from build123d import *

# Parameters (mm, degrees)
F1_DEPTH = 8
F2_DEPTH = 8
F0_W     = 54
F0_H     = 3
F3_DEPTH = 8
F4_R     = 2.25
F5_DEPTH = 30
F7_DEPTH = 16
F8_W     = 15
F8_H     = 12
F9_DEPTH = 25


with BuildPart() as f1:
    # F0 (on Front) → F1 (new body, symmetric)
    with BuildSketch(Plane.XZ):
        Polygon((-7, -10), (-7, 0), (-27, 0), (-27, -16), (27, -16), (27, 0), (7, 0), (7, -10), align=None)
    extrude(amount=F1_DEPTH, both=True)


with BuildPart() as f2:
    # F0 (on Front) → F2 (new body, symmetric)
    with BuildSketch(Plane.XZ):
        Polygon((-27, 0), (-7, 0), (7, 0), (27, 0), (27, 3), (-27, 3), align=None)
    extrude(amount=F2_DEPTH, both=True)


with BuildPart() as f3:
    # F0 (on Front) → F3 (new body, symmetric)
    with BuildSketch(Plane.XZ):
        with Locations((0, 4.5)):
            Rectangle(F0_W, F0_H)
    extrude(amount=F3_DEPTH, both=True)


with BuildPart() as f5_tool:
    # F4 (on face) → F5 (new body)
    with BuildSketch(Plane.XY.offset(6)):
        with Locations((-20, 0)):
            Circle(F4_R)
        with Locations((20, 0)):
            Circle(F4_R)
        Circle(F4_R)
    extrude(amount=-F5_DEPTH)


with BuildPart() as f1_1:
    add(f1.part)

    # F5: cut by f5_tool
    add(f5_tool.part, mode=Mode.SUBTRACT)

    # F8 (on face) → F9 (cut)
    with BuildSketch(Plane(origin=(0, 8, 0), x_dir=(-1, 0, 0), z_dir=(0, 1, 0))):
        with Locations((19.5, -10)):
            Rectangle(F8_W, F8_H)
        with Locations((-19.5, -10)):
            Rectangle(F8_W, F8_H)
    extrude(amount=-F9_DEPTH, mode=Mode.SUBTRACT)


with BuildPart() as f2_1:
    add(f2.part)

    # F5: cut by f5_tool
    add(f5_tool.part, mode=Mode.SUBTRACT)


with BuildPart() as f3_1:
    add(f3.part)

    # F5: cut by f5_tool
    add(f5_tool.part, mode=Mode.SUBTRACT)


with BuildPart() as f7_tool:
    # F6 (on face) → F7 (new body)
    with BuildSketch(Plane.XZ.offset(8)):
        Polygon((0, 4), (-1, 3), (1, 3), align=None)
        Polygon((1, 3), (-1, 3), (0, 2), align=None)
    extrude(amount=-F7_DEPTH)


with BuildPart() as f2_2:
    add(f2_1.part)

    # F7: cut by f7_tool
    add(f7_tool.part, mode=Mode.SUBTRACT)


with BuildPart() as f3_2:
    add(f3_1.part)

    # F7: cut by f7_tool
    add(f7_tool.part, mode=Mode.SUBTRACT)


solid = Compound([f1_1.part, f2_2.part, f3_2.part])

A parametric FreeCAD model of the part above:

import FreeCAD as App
import Part
import Sketcher
from FreeCAD import Vector
Q = App.Units.Quantity

doc = App.newDocument("Part")
body = doc.addObject("PartDesign::Body", "Body")

# Sketch on XZ plane
sketch1 = body.newObject("Sketcher::SketchObject", "Sketch")
sketch1.AttachmentSupport = (doc.getObject("XZ_Plane"), [""])
sketch1.MapMode = "FlatFace"
sketch1.addGeometry([
    Part.LineSegment(Vector(-7, -10, 0), Vector(-7, 0, 0)),  # 0
    Part.LineSegment(Vector(-7, 0, 0), Vector(-27, 0, 0)),  # 1
    Part.LineSegment(Vector(-27, 0, 0), Vector(-27, -16, 0)),  # 2
    Part.LineSegment(Vector(-27, -16, 0), Vector(27, -16, 0)),  # 3
    Part.LineSegment(Vector(27, -16, 0), Vector(27, 0, 0)),  # 4
    Part.LineSegment(Vector(27, 0, 0), Vector(7, 0, 0)),  # 5
    Part.LineSegment(Vector(7, 0, 0), Vector(7, -10, 0)),  # 6
    Part.LineSegment(Vector(7, -10, 0), Vector(-7, -10, 0)),  # 7
], False)
sketch1.addConstraint([
    Sketcher.Constraint("Coincident", 0, 2, 1, 1),
    Sketcher.Constraint("Coincident", 1, 2, 2, 1),
    Sketcher.Constraint("Coincident", 2, 2, 3, 1),
    Sketcher.Constraint("Coincident", 3, 2, 4, 1),
    Sketcher.Constraint("Coincident", 4, 2, 5, 1),
    Sketcher.Constraint("Coincident", 5, 2, 6, 1),
    Sketcher.Constraint("Coincident", 6, 2, 7, 1),
    Sketcher.Constraint("Coincident", 7, 2, 0, 1),
    Sketcher.Constraint("Vertical", 0),
    Sketcher.Constraint("Horizontal", 1),
    Sketcher.Constraint("Vertical", 2),
    Sketcher.Constraint("Horizontal", 3),
    Sketcher.Constraint("Vertical", 4),
    Sketcher.Constraint("Horizontal", 5),
    Sketcher.Constraint("Vertical", 6),
    Sketcher.Constraint("Horizontal", 7),
    Sketcher.Constraint("Symmetric", 1, 2, 4, 2, -1, 1),
    Sketcher.Constraint("Symmetric", 0, 2, 5, 2, -2),
    Sketcher.Constraint("DistanceX", 1, 2, 1, 1, Q("20 mm")),
    Sketcher.Constraint("DistanceX", 3, 1, 3, 2, Q("54 mm")),
    Sketcher.Constraint("DistanceY", 0, 1, 0, 2, Q("10 mm")),
    Sketcher.Constraint("DistanceY", 2, 2, 2, 1, Q("16 mm")),
])
pad1 = body.newObject("PartDesign::Pad", "Pad")
pad1.Profile = sketch1
pad1.Length = 16
pad1.Midplane = True
body2 = doc.addObject("PartDesign::Body", "Body001")

# Sketch on XZ plane
sketch2 = body2.newObject("Sketcher::SketchObject", "Sketch001")
sketch2.AttachmentSupport = (doc.getObject("XZ_Plane001"), [""])
sketch2.MapMode = "FlatFace"
sketch2.addGeometry([
    Part.LineSegment(Vector(-27, 0, 0), Vector(27, 0, 0)),
    Part.LineSegment(Vector(27, 0, 0), Vector(27, 3, 0)),
    Part.LineSegment(Vector(27, 3, 0), Vector(-27, 3, 0)),
    Part.LineSegment(Vector(-27, 3, 0), Vector(-27, 0, 0)),
], False)
sketch2.addConstraint([
    Sketcher.Constraint("Coincident", 0, 2, 1, 1),
    Sketcher.Constraint("Coincident", 1, 2, 2, 1),
    Sketcher.Constraint("Coincident", 2, 2, 3, 1),
    Sketcher.Constraint("Coincident", 3, 2, 0, 1),
    Sketcher.Constraint("Horizontal", 0),
    Sketcher.Constraint("Vertical", 1),
    Sketcher.Constraint("Horizontal", 2),
    Sketcher.Constraint("Vertical", 3),
    Sketcher.Constraint("Symmetric", 0, 2, 3, 2, -1, 1),
    Sketcher.Constraint("DistanceX", 0, 1, 0, 2, Q("54 mm")),
    Sketcher.Constraint("DistanceY", 1, 1, 1, 2, Q("3 mm")),
])
pad2 = body2.newObject("PartDesign::Pad", "Pad001")
pad2.Profile = sketch2
pad2.Length = 16
pad2.Midplane = True
body3 = doc.addObject("PartDesign::Body", "Body002")

# Sketch on XZ plane
sketch3 = body3.newObject("Sketcher::SketchObject", "Sketch002")
sketch3.AttachmentSupport = (doc.getObject("XZ_Plane002"), [""])
sketch3.MapMode = "FlatFace"
sketch3.addGeometry([
    Part.LineSegment(Vector(-27, 6, 0), Vector(-27, 3, 0)),
    Part.LineSegment(Vector(-27, 3, 0), Vector(27, 3, 0)),
    Part.LineSegment(Vector(27, 3, 0), Vector(27, 6, 0)),
    Part.LineSegment(Vector(27, 6, 0), Vector(-27, 6, 0)),
], False)
sketch3.addConstraint([
    Sketcher.Constraint("Coincident", 0, 2, 1, 1),
    Sketcher.Constraint("Coincident", 1, 2, 2, 1),
    Sketcher.Constraint("Coincident", 2, 2, 3, 1),
    Sketcher.Constraint("Coincident", 3, 2, 0, 1),
    Sketcher.Constraint("Vertical", 0),
    Sketcher.Constraint("Horizontal", 1),
    Sketcher.Constraint("Vertical", 2),
    Sketcher.Constraint("Horizontal", 3),
    Sketcher.Constraint("DistanceX", 1, 1, 1, 2, Q("54 mm")),
    Sketcher.Constraint("DistanceY", 0, 2, 0, 1, Q("3 mm")),
    Sketcher.Constraint("DistanceX", 0, 2, -1, 1, Q("27 mm")),
    Sketcher.Constraint("DistanceY", -1, 1, 0, 2, Q("3 mm")),
])
pad3 = body3.newObject("PartDesign::Pad", "Pad002")
pad3.Profile = sketch3
pad3.Length = 16
pad3.Midplane = True
body4 = doc.addObject("PartDesign::Body", "Body003")
body4.AllowCompound = True

# Sketch on XY plane
sketch4 = body4.newObject("Sketcher::SketchObject", "Sketch003")
sketch4.AttachmentSupport = (doc.getObject("XY_Plane003"), [""])
sketch4.MapMode = "FlatFace"
sketch4.AttachmentOffset = App.Placement(Vector(0, 0, 6), App.Rotation())
sketch4.addGeometry([
    Part.Circle(Vector(-20, 0, 0), Vector(0, 0, 1), 2.25),
    Part.Circle(Vector(20, 0, 0), Vector(0, 0, 1), 2.25),
    Part.Circle(Vector(0, 0, 0), Vector(0, 0, 1), 2.25),
], False)
sketch4.addConstraint([
    Sketcher.Constraint("Coincident", 2, 3, -1, 1),
    Sketcher.Constraint("Equal", 0, 1),
    Sketcher.Constraint("Equal", 1, 2),
    Sketcher.Constraint("Symmetric", 0, 3, 1, 3, -1, 1),
    Sketcher.Constraint("PointOnObject", 0, 3, -1),
    Sketcher.Constraint("Diameter", 0, Q("4.5 mm")),
    Sketcher.Constraint("DistanceX", 0, 3, -1, 1, Q("20 mm")),
])
pad4 = body4.newObject("PartDesign::Pad", "Pad003")
pad4.Profile = sketch4
pad4.Length = 30
pad4.Reversed = True
doc.recompute()

body5 = doc.addObject("PartDesign::Body", "Body004")
body5.BaseFeature = body4
boolean = body.newObject("PartDesign::Boolean", "Boolean")
boolean.Type = "Cut"
boolean.addObjects([body5])
doc.recompute()

# Sketch on XZ plane
sketch5 = body.newObject("Sketcher::SketchObject", "Sketch004")
sketch5.AttachmentSupport = (doc.getObject("XZ_Plane"), [""])
sketch5.MapMode = "FlatFace"
sketch5.AttachmentOffset = App.Placement(Vector(0, 0, -8), App.Rotation())
sketch5.addGeometry([
    Part.LineSegment(Vector(-12, -4, 0), Vector(-12, -16, 0)),  # 0
    Part.LineSegment(Vector(-12, -16, 0), Vector(-27, -16, 0)),  # 1
    Part.LineSegment(Vector(-27, -16, 0), Vector(-27, -4, 0)),  # 2
    Part.LineSegment(Vector(-27, -4, 0), Vector(-12, -4, 0)),  # 3
    Part.LineSegment(Vector(27, -4, 0), Vector(27, -16, 0)),  # 4
    Part.LineSegment(Vector(27, -16, 0), Vector(12, -16, 0)),  # 5
    Part.LineSegment(Vector(12, -16, 0), Vector(12, -4, 0)),  # 6
    Part.LineSegment(Vector(12, -4, 0), Vector(27, -4, 0)),  # 7
], False)
sketch5.addConstraint([
    Sketcher.Constraint("Coincident", 0, 2, 1, 1),
    Sketcher.Constraint("Coincident", 1, 2, 2, 1),
    Sketcher.Constraint("Coincident", 2, 2, 3, 1),
    Sketcher.Constraint("Coincident", 3, 2, 0, 1),
    Sketcher.Constraint("Coincident", 4, 2, 5, 1),
    Sketcher.Constraint("Coincident", 5, 2, 6, 1),
    Sketcher.Constraint("Coincident", 6, 2, 7, 1),
    Sketcher.Constraint("Coincident", 7, 2, 4, 1),
    Sketcher.Constraint("Vertical", 0),
    Sketcher.Constraint("Horizontal", 1),
    Sketcher.Constraint("Vertical", 2),
    Sketcher.Constraint("Horizontal", 3),
    Sketcher.Constraint("Vertical", 4),
    Sketcher.Constraint("Horizontal", 5),
    Sketcher.Constraint("Vertical", 6),
    Sketcher.Constraint("Horizontal", 7),
    Sketcher.Constraint("Symmetric", 1, 2, 4, 2, -2),
    Sketcher.Constraint("Symmetric", 3, 2, 6, 2, -2),
    Sketcher.Constraint("DistanceX", 1, 2, 1, 1, Q("15 mm")),
    Sketcher.Constraint("DistanceY", 0, 2, 0, 1, Q("12 mm")),
    Sketcher.Constraint("DistanceX", 0, 2, -1, 1, Q("12 mm")),
    Sketcher.Constraint("DistanceY", 0, 2, -1, 1, Q("16 mm")),
])
pocket1 = body.newObject("PartDesign::Pocket", "Pocket")
pocket1.Profile = sketch5
pocket1.Length = 25
pocket1.Reversed = True
doc.recompute()

body6 = doc.addObject("PartDesign::Body", "Body005")
body6.BaseFeature = body4
boolean2 = body2.newObject("PartDesign::Boolean", "Boolean001")
boolean2.Type = "Cut"
boolean2.addObjects([body6])
doc.recompute()

boolean3 = body3.newObject("PartDesign::Boolean", "Boolean002")
boolean3.Type = "Cut"
boolean3.addObjects([body4])
body7 = doc.addObject("PartDesign::Body", "Body006")

# Sketch on XZ plane
sketch6 = body7.newObject("Sketcher::SketchObject", "Sketch005")
sketch6.AttachmentSupport = (doc.getObject("XZ_Plane006"), [""])
sketch6.MapMode = "FlatFace"
sketch6.AttachmentOffset = App.Placement(Vector(0, 0, 8), App.Rotation())
sketch6.addGeometry([
    Part.LineSegment(Vector(0, 4, 0), Vector(-1, 3, 0)),
    Part.LineSegment(Vector(-1, 3, 0), Vector(0, 2, 0)),
    Part.LineSegment(Vector(0, 2, 0), Vector(1, 3, 0)),
    Part.LineSegment(Vector(1, 3, 0), Vector(0, 4, 0)),
], False)
sketch6.addConstraint([
    Sketcher.Constraint("Coincident", 0, 2, 1, 1),
    Sketcher.Constraint("Coincident", 1, 2, 2, 1),
    Sketcher.Constraint("Coincident", 2, 2, 3, 1),
    Sketcher.Constraint("Coincident", 3, 2, 0, 1),
    Sketcher.Constraint("Symmetric", 0, 2, 2, 2, -2),
    Sketcher.Constraint("PointOnObject", 1, 2, -2),
    Sketcher.Constraint("PointOnObject", 3, 2, -2),
    Sketcher.Constraint("Perpendicular", 0, 1),
    Sketcher.Constraint("Perpendicular", 1, 2),
    Sketcher.Constraint("DistanceX", 0, 2, -1, 1, Q("1 mm")),
    Sketcher.Constraint("DistanceY", -1, 1, 0, 2, Q("3 mm")),
])
pad5 = body7.newObject("PartDesign::Pad", "Pad004")
pad5.Profile = sketch6
pad5.Length = 16
pad5.Reversed = True
doc.recompute()

body8 = doc.addObject("PartDesign::Body", "Body007")
body8.BaseFeature = body7
boolean4 = body2.newObject("PartDesign::Boolean", "Boolean003")
boolean4.Type = "Cut"
boolean4.addObjects([body8])
doc.recompute()

boolean5 = body3.newObject("PartDesign::Boolean", "Boolean004")
boolean5.Type = "Cut"
boolean5.addObjects([body7])

doc.recompute()
